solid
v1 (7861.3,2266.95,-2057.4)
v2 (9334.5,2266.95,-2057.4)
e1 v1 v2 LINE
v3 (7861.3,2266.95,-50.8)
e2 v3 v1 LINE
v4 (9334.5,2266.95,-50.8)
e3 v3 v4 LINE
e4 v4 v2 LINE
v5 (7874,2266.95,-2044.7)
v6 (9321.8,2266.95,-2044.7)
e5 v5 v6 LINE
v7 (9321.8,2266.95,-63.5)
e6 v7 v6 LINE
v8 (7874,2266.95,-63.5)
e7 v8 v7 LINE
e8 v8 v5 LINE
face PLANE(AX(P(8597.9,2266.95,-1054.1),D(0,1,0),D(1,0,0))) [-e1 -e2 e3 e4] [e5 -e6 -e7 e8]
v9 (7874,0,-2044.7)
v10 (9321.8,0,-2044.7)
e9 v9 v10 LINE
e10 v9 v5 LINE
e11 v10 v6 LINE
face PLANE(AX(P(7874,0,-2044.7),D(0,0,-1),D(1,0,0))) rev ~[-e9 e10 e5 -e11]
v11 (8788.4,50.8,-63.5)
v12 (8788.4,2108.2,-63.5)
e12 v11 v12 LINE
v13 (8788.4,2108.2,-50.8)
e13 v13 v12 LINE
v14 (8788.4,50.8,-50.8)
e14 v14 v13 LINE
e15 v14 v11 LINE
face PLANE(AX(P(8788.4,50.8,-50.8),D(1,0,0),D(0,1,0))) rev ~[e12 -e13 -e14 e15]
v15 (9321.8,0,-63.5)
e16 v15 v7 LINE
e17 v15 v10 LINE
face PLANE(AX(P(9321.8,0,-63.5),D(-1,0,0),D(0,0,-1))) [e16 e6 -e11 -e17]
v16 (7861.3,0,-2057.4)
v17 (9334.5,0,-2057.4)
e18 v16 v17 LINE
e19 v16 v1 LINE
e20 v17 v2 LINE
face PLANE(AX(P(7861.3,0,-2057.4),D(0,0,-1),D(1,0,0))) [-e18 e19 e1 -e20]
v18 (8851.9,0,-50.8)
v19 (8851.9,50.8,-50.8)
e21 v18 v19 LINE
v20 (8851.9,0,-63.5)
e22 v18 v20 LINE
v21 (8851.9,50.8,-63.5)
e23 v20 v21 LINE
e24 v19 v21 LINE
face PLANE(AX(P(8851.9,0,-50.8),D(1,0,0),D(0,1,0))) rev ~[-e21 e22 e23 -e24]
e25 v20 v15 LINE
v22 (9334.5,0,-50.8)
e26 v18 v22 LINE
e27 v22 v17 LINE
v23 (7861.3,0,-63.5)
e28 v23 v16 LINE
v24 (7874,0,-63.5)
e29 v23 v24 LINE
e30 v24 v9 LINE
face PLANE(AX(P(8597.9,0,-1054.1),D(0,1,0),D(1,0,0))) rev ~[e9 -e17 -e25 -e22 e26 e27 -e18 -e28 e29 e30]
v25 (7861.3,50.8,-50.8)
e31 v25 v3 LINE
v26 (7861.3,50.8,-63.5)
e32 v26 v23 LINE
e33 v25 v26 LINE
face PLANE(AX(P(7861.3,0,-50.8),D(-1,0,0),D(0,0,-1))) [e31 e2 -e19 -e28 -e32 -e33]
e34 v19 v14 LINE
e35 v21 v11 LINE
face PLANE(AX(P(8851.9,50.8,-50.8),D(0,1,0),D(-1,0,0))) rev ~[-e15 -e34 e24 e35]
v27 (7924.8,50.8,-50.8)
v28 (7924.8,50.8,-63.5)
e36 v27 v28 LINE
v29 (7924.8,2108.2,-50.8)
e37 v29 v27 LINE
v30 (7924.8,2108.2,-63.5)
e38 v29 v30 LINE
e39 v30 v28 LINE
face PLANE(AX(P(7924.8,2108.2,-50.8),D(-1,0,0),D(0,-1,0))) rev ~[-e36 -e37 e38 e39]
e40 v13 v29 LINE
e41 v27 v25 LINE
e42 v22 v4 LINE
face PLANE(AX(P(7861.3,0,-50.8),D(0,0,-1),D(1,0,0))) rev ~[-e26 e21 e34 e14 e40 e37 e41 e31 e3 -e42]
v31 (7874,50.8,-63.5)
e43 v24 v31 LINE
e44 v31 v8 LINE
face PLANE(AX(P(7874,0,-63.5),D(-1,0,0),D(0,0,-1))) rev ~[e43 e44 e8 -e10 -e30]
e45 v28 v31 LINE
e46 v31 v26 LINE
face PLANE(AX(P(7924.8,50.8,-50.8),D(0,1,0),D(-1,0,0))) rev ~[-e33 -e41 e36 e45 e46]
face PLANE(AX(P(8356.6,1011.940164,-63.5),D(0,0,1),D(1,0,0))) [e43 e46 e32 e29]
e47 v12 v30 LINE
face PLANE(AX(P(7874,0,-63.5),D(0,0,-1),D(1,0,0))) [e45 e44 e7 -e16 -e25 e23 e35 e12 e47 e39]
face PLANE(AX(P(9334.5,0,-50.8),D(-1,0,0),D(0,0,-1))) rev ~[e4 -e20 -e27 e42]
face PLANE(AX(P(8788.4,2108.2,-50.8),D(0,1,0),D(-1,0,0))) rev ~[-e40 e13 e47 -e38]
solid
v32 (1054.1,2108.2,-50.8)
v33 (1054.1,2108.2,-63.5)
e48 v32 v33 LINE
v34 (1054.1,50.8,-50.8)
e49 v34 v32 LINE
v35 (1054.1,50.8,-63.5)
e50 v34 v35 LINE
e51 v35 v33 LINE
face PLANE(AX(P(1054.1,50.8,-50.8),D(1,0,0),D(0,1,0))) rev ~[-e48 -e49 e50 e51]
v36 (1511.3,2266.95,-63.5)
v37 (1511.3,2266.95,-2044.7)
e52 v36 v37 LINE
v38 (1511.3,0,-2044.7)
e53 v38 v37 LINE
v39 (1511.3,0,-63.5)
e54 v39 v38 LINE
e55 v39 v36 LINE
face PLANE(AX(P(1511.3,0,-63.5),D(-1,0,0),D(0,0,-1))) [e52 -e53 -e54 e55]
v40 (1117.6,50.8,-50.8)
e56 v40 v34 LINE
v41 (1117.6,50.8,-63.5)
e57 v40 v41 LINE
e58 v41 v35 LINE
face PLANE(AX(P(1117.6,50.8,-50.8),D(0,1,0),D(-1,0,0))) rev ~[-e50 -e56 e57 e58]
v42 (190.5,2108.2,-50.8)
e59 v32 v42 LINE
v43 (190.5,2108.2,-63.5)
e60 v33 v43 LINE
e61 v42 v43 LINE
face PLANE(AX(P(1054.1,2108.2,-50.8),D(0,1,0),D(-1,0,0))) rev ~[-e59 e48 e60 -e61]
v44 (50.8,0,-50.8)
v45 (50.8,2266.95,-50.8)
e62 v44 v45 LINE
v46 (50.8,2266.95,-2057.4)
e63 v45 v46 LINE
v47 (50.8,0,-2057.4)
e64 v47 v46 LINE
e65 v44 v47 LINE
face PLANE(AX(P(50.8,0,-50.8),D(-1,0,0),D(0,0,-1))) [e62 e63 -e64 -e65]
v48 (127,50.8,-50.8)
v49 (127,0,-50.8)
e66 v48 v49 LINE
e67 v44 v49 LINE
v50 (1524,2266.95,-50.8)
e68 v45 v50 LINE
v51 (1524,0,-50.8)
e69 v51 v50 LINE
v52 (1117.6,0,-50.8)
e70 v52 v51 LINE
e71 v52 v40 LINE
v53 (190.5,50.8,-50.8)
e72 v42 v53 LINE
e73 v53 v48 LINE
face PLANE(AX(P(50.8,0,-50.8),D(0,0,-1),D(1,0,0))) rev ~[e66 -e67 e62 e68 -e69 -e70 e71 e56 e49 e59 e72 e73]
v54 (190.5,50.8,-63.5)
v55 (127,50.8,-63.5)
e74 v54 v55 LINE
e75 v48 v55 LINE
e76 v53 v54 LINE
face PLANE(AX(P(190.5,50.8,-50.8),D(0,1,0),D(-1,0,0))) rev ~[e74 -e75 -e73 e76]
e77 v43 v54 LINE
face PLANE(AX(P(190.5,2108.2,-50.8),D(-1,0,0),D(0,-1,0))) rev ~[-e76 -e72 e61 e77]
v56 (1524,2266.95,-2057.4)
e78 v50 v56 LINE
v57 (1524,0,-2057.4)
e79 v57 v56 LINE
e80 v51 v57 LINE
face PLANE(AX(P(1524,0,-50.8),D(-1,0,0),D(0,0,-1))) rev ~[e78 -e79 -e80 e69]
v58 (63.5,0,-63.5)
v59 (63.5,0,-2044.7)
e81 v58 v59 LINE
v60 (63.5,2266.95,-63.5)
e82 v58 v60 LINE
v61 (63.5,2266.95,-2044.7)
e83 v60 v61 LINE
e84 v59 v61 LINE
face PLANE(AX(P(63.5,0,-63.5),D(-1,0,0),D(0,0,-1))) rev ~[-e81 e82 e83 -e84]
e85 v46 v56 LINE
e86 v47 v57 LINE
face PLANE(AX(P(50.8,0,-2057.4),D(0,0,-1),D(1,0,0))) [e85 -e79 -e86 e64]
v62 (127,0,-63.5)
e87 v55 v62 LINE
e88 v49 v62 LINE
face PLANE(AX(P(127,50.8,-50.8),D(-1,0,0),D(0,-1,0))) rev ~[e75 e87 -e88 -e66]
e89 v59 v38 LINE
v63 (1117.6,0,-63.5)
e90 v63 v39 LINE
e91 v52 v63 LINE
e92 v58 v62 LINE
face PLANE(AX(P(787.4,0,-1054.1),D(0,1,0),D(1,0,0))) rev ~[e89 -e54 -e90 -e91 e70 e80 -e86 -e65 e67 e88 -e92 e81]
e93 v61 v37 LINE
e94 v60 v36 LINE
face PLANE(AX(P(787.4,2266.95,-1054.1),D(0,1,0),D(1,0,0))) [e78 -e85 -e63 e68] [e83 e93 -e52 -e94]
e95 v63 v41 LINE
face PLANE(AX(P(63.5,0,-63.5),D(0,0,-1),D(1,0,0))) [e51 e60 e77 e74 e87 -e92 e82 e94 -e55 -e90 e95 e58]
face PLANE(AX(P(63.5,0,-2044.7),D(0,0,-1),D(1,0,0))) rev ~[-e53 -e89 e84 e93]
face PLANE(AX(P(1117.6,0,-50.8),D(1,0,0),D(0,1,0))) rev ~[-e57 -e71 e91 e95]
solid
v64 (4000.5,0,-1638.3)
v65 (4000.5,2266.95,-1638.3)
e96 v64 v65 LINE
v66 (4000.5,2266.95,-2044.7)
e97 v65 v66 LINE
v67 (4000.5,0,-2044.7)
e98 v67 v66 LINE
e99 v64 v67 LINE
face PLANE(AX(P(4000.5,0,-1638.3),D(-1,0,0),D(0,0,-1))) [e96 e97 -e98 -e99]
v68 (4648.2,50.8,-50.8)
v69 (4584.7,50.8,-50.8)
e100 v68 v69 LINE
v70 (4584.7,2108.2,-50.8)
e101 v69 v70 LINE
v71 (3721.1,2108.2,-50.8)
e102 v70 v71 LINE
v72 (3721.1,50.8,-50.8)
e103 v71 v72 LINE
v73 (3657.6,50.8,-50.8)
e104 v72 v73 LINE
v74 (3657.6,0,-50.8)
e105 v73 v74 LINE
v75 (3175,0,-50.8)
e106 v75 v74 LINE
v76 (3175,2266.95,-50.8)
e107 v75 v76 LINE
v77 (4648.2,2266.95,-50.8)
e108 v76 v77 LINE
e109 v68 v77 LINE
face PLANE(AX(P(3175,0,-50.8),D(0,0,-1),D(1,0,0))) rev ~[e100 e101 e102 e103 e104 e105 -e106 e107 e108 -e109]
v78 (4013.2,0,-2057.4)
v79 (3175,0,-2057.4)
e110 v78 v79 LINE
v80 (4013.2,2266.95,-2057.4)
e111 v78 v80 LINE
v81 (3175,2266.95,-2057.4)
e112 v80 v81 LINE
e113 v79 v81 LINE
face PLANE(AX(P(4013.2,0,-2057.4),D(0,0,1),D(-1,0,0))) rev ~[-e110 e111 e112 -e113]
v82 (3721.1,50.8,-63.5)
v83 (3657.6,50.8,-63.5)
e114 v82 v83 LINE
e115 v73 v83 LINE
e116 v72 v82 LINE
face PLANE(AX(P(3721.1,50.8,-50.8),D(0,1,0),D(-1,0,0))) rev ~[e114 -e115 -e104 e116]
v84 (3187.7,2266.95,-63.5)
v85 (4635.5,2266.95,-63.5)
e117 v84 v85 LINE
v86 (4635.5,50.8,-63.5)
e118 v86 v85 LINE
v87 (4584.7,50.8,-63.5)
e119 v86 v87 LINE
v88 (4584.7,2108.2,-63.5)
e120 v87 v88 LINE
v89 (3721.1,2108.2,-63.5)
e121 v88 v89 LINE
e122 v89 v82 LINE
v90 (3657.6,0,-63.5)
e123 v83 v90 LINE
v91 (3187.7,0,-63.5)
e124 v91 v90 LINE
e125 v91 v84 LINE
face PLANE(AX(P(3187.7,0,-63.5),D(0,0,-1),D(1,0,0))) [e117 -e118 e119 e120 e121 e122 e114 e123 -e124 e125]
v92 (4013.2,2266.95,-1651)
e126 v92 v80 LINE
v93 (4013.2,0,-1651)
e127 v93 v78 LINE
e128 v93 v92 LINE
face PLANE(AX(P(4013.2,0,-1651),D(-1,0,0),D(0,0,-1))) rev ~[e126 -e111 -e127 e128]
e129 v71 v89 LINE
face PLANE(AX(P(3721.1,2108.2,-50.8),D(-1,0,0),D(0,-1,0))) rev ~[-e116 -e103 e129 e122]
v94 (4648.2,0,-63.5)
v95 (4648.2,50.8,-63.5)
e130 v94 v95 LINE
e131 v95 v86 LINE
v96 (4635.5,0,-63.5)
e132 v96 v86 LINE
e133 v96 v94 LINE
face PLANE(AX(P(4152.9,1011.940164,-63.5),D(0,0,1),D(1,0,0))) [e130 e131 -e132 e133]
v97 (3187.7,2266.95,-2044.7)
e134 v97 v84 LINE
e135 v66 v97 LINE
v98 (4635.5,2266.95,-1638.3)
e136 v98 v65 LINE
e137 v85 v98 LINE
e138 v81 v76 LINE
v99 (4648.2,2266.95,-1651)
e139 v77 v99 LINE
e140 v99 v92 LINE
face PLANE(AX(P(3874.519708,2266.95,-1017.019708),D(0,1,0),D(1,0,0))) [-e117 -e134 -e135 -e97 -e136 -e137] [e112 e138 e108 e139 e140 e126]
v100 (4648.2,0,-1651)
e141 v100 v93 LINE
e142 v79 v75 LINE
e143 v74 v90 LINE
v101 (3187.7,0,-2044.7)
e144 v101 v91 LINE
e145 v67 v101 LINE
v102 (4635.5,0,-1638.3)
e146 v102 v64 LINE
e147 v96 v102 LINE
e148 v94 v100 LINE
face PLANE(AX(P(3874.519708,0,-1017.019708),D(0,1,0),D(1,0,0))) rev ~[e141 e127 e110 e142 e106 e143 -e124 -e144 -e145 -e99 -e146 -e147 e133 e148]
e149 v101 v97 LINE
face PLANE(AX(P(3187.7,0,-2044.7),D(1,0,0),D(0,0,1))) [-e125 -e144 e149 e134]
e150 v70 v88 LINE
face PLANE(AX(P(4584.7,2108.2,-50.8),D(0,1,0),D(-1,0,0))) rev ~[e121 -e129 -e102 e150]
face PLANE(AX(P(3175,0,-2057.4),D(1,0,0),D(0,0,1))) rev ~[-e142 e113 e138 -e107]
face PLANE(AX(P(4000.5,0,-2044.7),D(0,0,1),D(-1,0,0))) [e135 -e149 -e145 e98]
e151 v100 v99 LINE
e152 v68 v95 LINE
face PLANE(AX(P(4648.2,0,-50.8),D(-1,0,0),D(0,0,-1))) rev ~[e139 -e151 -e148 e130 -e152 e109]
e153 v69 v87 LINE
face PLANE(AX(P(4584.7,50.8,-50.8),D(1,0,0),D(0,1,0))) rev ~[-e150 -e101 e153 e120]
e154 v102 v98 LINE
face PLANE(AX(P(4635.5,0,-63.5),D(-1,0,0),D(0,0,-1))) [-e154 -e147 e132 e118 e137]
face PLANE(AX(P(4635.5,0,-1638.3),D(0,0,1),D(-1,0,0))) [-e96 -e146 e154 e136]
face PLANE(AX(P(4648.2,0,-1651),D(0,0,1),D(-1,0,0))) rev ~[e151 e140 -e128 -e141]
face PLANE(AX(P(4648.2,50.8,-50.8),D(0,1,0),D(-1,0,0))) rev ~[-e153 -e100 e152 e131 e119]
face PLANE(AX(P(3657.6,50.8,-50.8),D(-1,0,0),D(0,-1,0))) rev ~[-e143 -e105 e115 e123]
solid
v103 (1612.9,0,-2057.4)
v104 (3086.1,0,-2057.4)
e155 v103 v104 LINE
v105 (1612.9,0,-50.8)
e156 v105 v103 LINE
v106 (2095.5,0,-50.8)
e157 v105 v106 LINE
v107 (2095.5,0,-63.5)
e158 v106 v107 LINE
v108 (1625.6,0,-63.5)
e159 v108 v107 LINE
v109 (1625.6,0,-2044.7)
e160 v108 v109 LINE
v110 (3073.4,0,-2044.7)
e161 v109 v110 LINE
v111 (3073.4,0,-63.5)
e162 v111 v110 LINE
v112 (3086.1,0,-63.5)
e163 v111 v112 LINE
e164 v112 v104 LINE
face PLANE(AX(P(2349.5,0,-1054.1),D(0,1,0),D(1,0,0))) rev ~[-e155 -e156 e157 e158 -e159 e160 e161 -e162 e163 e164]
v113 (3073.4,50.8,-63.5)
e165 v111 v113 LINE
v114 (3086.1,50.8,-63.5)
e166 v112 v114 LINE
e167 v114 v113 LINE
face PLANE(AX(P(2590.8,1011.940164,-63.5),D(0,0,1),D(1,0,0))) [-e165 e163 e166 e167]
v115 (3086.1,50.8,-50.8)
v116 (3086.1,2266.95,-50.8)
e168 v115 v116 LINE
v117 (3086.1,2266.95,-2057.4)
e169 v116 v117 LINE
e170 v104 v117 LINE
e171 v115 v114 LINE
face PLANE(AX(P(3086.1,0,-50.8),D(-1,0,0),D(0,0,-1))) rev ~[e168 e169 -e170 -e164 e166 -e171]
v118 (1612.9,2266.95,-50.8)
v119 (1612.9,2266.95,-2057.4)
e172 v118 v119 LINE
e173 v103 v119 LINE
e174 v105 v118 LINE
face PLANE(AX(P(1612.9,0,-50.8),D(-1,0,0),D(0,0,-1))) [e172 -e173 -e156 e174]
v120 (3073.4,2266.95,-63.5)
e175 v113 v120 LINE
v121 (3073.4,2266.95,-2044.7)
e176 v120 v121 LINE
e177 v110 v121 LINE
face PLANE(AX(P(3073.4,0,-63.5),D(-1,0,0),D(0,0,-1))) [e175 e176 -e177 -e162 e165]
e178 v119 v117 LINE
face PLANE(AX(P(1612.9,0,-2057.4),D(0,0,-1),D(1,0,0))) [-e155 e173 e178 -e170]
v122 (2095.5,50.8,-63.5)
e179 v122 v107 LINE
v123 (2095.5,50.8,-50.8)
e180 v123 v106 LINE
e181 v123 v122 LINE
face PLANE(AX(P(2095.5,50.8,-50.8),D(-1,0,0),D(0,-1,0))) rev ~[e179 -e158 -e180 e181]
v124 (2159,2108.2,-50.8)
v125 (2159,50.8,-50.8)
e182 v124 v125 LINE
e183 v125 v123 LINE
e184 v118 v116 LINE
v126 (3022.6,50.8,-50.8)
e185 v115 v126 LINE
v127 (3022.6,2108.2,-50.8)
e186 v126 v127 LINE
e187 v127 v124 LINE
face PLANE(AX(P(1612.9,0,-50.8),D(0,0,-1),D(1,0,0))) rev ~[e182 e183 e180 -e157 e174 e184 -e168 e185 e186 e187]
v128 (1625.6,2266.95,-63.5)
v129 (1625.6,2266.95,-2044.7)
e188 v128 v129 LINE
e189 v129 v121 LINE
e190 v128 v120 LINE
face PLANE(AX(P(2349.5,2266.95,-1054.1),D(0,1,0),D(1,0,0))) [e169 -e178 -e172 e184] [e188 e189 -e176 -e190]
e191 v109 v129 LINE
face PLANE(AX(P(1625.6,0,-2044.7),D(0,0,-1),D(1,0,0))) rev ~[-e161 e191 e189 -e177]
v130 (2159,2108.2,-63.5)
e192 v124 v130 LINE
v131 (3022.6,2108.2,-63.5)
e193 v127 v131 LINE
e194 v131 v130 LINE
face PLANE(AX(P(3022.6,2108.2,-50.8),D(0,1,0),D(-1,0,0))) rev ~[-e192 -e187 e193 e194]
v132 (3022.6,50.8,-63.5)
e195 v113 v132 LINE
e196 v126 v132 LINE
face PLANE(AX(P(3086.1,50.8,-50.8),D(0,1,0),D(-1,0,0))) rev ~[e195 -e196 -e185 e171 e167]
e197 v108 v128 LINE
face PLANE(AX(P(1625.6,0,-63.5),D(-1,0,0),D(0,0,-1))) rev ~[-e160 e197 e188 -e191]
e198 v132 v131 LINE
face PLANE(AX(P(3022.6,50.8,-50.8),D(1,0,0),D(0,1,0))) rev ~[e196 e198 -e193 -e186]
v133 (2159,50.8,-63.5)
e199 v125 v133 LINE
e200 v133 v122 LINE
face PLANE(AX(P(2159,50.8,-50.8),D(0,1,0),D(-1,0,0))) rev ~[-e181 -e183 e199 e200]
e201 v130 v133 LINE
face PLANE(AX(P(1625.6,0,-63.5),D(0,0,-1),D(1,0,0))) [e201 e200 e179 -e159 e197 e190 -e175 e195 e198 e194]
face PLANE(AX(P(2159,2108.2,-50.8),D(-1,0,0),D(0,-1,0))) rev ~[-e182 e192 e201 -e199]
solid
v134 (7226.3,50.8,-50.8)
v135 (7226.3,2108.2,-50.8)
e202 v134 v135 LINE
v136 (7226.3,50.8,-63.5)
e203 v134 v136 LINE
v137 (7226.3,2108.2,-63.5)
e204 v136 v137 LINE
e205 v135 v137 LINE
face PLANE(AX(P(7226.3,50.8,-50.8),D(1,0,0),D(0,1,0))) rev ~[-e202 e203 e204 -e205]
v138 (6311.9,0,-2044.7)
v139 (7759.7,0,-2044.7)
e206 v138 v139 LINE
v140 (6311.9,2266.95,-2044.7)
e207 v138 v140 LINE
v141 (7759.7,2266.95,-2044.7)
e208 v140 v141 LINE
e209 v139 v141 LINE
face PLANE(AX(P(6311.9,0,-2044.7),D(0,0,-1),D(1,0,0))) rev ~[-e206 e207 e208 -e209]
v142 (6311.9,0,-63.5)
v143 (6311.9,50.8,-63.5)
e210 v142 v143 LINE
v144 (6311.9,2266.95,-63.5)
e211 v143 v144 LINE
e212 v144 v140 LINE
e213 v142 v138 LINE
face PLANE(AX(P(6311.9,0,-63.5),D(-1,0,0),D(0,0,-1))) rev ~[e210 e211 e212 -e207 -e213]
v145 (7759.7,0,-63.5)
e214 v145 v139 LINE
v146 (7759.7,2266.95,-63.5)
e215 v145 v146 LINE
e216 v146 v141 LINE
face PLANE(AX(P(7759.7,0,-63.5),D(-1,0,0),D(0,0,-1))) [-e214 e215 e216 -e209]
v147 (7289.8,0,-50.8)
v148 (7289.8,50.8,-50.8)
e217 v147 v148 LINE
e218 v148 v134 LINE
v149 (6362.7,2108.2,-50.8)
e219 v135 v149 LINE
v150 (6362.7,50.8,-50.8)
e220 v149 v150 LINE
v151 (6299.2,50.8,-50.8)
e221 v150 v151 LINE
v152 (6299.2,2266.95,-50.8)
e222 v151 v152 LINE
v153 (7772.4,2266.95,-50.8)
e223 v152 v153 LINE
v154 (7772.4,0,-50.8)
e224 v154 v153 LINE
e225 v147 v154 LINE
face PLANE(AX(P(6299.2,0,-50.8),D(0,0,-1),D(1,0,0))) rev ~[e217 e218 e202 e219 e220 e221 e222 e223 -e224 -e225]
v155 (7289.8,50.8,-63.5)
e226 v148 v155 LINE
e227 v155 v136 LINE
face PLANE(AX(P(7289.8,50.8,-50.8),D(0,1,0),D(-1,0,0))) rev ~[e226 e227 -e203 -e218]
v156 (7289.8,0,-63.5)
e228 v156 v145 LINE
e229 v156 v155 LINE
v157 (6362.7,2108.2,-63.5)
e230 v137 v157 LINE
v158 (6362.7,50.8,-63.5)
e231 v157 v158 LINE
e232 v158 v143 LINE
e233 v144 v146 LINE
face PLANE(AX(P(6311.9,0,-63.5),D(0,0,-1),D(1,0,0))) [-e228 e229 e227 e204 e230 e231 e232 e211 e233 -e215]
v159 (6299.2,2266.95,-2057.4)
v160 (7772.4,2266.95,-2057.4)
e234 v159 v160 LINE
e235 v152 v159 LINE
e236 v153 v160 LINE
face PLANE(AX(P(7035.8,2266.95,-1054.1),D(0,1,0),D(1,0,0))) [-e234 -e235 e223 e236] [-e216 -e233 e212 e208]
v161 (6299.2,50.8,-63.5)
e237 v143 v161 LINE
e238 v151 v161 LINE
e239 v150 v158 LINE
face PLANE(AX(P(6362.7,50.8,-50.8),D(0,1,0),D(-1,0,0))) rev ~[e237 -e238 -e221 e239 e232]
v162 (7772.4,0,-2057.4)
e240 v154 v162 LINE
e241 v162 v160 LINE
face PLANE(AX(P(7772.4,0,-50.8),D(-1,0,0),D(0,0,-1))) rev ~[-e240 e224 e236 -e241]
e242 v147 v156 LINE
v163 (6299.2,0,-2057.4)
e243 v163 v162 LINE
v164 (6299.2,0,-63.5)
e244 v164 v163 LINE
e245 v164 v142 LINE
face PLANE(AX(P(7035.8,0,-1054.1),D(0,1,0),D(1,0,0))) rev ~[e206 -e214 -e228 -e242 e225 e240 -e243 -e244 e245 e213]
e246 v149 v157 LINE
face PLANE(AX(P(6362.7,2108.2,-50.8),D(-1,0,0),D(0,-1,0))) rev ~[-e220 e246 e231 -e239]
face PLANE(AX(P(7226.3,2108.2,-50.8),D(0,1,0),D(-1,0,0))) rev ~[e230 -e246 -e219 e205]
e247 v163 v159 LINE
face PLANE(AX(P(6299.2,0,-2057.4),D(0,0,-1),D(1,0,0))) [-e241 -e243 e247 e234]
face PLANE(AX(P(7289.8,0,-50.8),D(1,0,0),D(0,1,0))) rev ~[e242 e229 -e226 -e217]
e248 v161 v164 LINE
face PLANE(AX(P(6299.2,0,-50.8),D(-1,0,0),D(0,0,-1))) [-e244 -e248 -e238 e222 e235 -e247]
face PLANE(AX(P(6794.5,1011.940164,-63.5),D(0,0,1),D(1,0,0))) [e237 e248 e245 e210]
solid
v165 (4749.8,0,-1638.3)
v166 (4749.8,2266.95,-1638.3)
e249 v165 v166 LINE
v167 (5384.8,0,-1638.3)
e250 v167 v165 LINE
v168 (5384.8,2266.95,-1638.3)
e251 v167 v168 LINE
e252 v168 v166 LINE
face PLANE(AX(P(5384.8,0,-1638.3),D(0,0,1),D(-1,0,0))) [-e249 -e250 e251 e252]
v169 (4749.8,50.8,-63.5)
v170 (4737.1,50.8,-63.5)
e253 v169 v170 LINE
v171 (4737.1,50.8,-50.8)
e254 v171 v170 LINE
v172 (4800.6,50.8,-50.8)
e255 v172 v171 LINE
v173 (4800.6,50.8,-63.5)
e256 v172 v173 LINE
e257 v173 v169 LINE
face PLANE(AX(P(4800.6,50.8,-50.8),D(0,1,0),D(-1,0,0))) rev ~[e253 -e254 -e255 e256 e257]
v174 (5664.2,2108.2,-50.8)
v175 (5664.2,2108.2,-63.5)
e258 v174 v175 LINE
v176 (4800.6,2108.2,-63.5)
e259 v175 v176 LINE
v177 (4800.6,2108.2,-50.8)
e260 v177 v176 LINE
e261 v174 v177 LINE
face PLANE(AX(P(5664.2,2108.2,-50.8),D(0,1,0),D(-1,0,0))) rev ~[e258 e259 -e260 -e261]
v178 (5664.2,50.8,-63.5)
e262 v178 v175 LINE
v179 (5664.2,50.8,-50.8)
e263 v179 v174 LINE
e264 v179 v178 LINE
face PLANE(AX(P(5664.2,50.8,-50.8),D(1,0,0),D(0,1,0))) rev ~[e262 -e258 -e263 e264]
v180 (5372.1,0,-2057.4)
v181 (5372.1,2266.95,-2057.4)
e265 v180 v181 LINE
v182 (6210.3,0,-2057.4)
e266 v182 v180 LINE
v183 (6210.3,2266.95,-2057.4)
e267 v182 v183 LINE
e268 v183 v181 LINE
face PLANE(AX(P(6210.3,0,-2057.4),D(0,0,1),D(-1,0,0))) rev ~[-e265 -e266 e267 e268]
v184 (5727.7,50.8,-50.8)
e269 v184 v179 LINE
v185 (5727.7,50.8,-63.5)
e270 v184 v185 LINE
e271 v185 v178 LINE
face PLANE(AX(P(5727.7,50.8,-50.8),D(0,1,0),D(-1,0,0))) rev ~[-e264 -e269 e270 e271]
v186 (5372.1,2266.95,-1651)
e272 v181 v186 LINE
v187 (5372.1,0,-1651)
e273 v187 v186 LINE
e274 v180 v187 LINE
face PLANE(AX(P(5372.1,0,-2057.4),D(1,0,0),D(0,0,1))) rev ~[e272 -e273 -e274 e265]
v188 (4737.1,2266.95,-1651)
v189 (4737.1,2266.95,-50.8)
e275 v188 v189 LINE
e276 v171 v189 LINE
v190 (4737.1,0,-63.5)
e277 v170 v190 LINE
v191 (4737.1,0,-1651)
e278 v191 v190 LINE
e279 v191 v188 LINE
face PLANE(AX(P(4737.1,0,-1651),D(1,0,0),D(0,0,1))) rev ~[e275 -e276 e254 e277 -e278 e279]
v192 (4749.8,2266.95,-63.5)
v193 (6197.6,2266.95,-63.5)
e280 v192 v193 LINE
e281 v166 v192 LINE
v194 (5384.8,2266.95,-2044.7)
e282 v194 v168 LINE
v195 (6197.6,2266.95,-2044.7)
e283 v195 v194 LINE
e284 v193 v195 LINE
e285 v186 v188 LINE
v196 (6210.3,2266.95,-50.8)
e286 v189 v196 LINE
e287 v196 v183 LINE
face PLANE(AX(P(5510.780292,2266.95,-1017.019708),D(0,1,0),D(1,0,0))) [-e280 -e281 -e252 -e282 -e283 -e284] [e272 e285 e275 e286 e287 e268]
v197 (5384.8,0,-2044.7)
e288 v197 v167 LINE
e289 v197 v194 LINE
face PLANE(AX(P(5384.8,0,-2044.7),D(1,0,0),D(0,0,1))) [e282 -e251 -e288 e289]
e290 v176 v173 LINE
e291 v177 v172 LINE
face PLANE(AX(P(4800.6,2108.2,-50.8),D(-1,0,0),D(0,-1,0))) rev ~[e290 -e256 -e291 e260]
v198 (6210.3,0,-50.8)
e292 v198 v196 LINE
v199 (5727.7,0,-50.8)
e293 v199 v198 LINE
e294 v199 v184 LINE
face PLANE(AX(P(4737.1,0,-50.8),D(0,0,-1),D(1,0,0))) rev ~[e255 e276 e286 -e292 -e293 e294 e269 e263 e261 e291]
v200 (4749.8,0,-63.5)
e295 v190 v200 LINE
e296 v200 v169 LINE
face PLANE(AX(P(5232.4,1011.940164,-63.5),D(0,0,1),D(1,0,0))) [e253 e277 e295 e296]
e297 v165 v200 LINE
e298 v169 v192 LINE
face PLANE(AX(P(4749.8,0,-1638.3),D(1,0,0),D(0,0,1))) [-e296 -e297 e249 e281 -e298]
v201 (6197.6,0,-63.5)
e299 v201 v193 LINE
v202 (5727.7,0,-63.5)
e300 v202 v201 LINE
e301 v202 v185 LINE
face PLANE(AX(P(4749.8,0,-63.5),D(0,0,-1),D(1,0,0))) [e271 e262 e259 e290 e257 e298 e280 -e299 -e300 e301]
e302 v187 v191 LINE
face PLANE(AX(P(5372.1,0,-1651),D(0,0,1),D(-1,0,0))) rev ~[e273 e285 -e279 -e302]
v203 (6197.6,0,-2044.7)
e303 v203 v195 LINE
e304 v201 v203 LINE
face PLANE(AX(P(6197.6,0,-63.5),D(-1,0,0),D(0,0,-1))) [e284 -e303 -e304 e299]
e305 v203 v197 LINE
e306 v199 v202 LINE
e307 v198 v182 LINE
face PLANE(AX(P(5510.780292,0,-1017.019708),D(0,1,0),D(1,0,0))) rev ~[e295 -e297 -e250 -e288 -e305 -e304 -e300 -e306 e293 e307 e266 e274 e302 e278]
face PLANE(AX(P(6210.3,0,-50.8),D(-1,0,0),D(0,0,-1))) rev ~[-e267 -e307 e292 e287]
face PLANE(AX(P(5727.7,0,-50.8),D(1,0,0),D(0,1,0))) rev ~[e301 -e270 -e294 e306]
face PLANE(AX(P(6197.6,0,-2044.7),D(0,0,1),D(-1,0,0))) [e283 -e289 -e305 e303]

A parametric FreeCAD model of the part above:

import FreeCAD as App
import Part
import Sketcher
Q = App.Units.Quantity

doc = App.newDocument("Part")
body = doc.addObject("PartDesign::Body", "Body")

# Sketch on XZ plane
sketch1 = body.newObject("Sketcher::SketchObject", "Sketch")
sketch1.AttachmentSupport = (doc.getObject("XZ_Plane"), [""])
sketch1.MapMode = "FlatFace"
sketch1.addGeometry([
    Part.LineSegment(App.Vector(1613, -2057, 0), App.Vector(1613, -51, 0)),  # 0
    Part.LineSegment(App.Vector(1613, -51, 0), App.Vector(3086, -51, 0)),  # 1
    Part.LineSegment(App.Vector(3086, -51, 0), App.Vector(3086, -2057, 0)),  # 2
    Part.LineSegment(App.Vector(3086, -2057, 0), App.Vector(1613, -2057, 0)),  # 3
    Part.LineSegment(App.Vector(3073, -64, 0), App.Vector(1626, -64, 0)),  # 4
    Part.LineSegment(App.Vector(1626, -64, 0), App.Vector(1626, -2045, 0)),  # 5
    Part.LineSegment(App.Vector(1626, -2045, 0), App.Vector(3073, -2045, 0)),  # 6
    Part.LineSegment(App.Vector(3073, -2045, 0), App.Vector(3073, -64, 0)),  # 7
], False)
sketch1.addConstraint([
    Sketcher.Constraint("Coincident", 0, 2, 1, 1),
    Sketcher.Constraint("Coincident", 1, 2, 2, 1),
    Sketcher.Constraint("Coincident", 2, 2, 3, 1),
    Sketcher.Constraint("Coincident", 3, 2, 0, 1),
    Sketcher.Constraint("Coincident", 4, 2, 5, 1),
    Sketcher.Constraint("Coincident", 5, 2, 6, 1),
    Sketcher.Constraint("Coincident", 6, 2, 7, 1),
    Sketcher.Constraint("Coincident", 7, 2, 4, 1),
    Sketcher.Constraint("Vertical", 0),
    Sketcher.Constraint("Horizontal", 1),
    Sketcher.Constraint("Vertical", 2),
    Sketcher.Constraint("Horizontal", 3),
    Sketcher.Constraint("Horizontal", 4),
    Sketcher.Constraint("Vertical", 5),
    Sketcher.Constraint("Horizontal", 6),
    Sketcher.Constraint("Vertical", 7),
    Sketcher.Constraint("DistanceX", 1, 1, 1, 2, Q("58 in")),
    Sketcher.Constraint("DistanceX", 4, 2, 4, 1, Q("57 in")),
    Sketcher.Constraint("DistanceY", 0, 1, 0, 2, Q("79 in")),
    Sketcher.Constraint("DistanceY", 5, 2, 5, 1, Q("78 in")),
    Sketcher.Constraint("DistanceY", 0, 2, -1, 1, Q("2 in")),
    Sketcher.Constraint("DistanceX", -1, 1, 4, 2, Q("64 in")),
    Sketcher.Constraint("DistanceX", -1, 1, 0, 2, Q("63.5 in")),
    Sketcher.Constraint("DistanceY", 4, 2, -1, 1, Q("2.5 in")),
])
pad1 = body.newObject("PartDesign::Pad", "Pad")
pad1.Profile = sketch1
pad1.Length = Q("89.25 in")
pad1.Reversed = True
body2 = doc.addObject("PartDesign::Body", "Body001")

# Sketch on XZ plane
sketch2 = body2.newObject("Sketcher::SketchObject", "Sketch001")
sketch2.AttachmentSupport = (doc.getObject("XZ_Plane001"), [""])
sketch2.MapMode = "FlatFace"
sketch2.addGeometry([
    Part.LineSegment(App.Vector(4013, -1651, 0), App.Vector(4013, -2057, 0)),  # 0
    Part.LineSegment(App.Vector(4013, -2057, 0), App.Vector(3175, -2057, 0)),  # 1
    Part.LineSegment(App.Vector(3175, -2057, 0), App.Vector(3175, -51, 0)),  # 2
    Part.LineSegment(App.Vector(3175, -51, 0), App.Vector(4648, -51, 0)),  # 3
    Part.LineSegment(App.Vector(4648, -51, 0), App.Vector(4648, -1651, 0)),  # 4
    Part.LineSegment(App.Vector(4648, -1651, 0), App.Vector(4013, -1651, 0)),  # 5
    Part.LineSegment(App.Vector(4636, -64, 0), App.Vector(3188, -64, 0)),  # 6
    Part.LineSegment(App.Vector(3188, -64, 0), App.Vector(3188, -2045, 0)),  # 7
    Part.LineSegment(App.Vector(3188, -2045, 0), App.Vector(4000, -2045, 0)),  # 8
    Part.LineSegment(App.Vector(4000, -2045, 0), App.Vector(4000, -1638, 0)),  # 9
    Part.LineSegment(App.Vector(4000, -1638, 0), App.Vector(4636, -1638, 0)),  # 10
    Part.LineSegment(App.Vector(4636, -1638, 0), App.Vector(4636, -64, 0)),  # 11
], False)
sketch2.addConstraint([
    Sketcher.Constraint("Coincident", 0, 2, 1, 1),
    Sketcher.Constraint("Coincident", 1, 2, 2, 1),
    Sketcher.Constraint("Coincident", 2, 2, 3, 1),
    Sketcher.Constraint("Coincident", 3, 2, 4, 1),
    Sketcher.Constraint("Coincident", 4, 2, 5, 1),
    Sketcher.Constraint("Coincident", 5, 2, 0, 1),
    Sketcher.Constraint("Coincident", 6, 2, 7, 1),
    Sketcher.Constraint("Coincident", 7, 2, 8, 1),
    Sketcher.Constraint("Coincident", 8, 2, 9, 1),
    Sketcher.Constraint("Coincident", 9, 2, 10, 1),
    Sketcher.Constraint("Coincident", 10, 2, 11, 1),
    Sketcher.Constraint("Coincident", 11, 2, 6, 1),
    Sketcher.Constraint("Vertical", 0),
    Sketcher.Constraint("Horizontal", 1),
    Sketcher.Constraint("Vertical", 2),
    Sketcher.Constraint("Horizontal", 3),
    Sketcher.Constraint("Vertical", 4),
    Sketcher.Constraint("Horizontal", 5),
    Sketcher.Constraint("Horizontal", 6),
    Sketcher.Constraint("Vertical", 7),
    Sketcher.Constraint("Horizontal", 8),
    Sketcher.Constraint("Vertical", 9),
    Sketcher.Constraint("Horizontal", 10),
    Sketcher.Constraint("Vertical", 11),
    Sketcher.Constraint("Equal", 5, 10),
    Sketcher.Constraint("Equal", 0, 9),
    Sketcher.Constraint("DistanceX", 1, 2, 1, 1, Q("33 in")),
    Sketcher.Constraint("DistanceX", 3, 1, 3, 2, Q("58 in")),
    Sketcher.Constraint("DistanceX", 6, 2, 6, 1, Q("57 in")),
    Sketcher.Constraint("DistanceY", 0, 2, 0, 1, Q("16 in")),
    Sketcher.Constraint("DistanceY", 2, 1, 2, 2, Q("79 in")),
    Sketcher.Constraint("DistanceY", 7, 2, 7, 1, Q("78 in")),
    Sketcher.Constraint("DistanceX", -1, 1, 0, 2, Q("158 in")),
    Sketcher.Constraint("DistanceY", 0, 2, -1, 1, Q("81 in")),
    Sketcher.Constraint("DistanceX", -1, 1, 6, 2, Q("125.5 in")),
    Sketcher.Constraint("DistanceY", 6, 2, -1, 1, Q("2.5 in")),
])
pad2 = body2.newObject("PartDesign::Pad", "Pad001")
pad2.Profile = sketch2
pad2.Length = Q("89.25 in")
pad2.Reversed = True
body3 = doc.addObject("PartDesign::Body", "Body002")

# Sketch on XZ plane
sketch3 = body3.newObject("Sketcher::SketchObject", "Sketch002")
sketch3.AttachmentSupport = (doc.getObject("XZ_Plane002"), [""])
sketch3.MapMode = "FlatFace"
sketch3.addGeometry([
    Part.LineSegment(App.Vector(51, -2057, 0), App.Vector(51, -51, 0)),  # 0
    Part.LineSegment(App.Vector(51, -51, 0), App.Vector(1524, -51, 0)),  # 1
    Part.LineSegment(App.Vector(1524, -51, 0), App.Vector(1524, -2057, 0)),  # 2
    Part.LineSegment(App.Vector(1524, -2057, 0), App.Vector(51, -2057, 0)),  # 3
    Part.LineSegment(App.Vector(1511, -64, 0), App.Vector(64, -64, 0)),  # 4
    Part.LineSegment(App.Vector(64, -64, 0), App.Vector(64, -2045, 0)),  # 5
    Part.LineSegment(App.Vector(64, -2045, 0), App.Vector(1511, -2045, 0)),  # 6
    Part.LineSegment(App.Vector(1511, -2045, 0), App.Vector(1511, -64, 0)),  # 7
], False)
sketch3.addConstraint([
    Sketcher.Constraint("Coincident", 0, 2, 1, 1),
    Sketcher.Constraint("Coincident", 1, 2, 2, 1),
    Sketcher.Constraint("Coincident", 2, 2, 3, 1),
    Sketcher.Constraint("Coincident", 3, 2, 0, 1),
    Sketcher.Constraint("Coincident", 4, 2, 5, 1),
    Sketcher.Constraint("Coincident", 5, 2, 6, 1),
    Sketcher.Constraint("Coincident", 6, 2, 7, 1),
    Sketcher.Constraint("Coincident", 7, 2, 4, 1),
    Sketcher.Constraint("Vertical", 0),
    Sketcher.Constraint("Horizontal", 1),
    Sketcher.Constraint("Vertical", 2),
    Sketcher.Constraint("Horizontal", 3),
    Sketcher.Constraint("Horizontal", 4),
    Sketcher.Constraint("Vertical", 5),
    Sketcher.Constraint("Horizontal", 6),
    Sketcher.Constraint("Vertical", 7),
    Sketcher.Constraint("DistanceX", 1, 1, 1, 2, Q("58 in")),
    Sketcher.Constraint("DistanceX", 4, 2, 4, 1, Q("57 in")),
    Sketcher.Constraint("DistanceY", 0, 1, 0, 2, Q("79 in")),
    Sketcher.Constraint("DistanceY", 5, 2, 5, 1, Q("78 in")),
    Sketcher.Constraint("DistanceX", -1, 1, 0, 2, Q("2 in")),
    Sketcher.Constraint("DistanceY", 0, 2, -1, 1, Q("2 in")),
    Sketcher.Constraint("DistanceX", -1, 1, 4, 2, Q("2.5 in")),
    Sketcher.Constraint("DistanceY", 4, 2, -1, 1, Q("2.5 in")),
])
pad3 = body3.newObject("PartDesign::Pad", "Pad002")
pad3.Profile = sketch3
pad3.Length = Q("89.25 in")
pad3.Reversed = True
body4 = doc.addObject("PartDesign::Body", "Body003")

# Sketch on XZ plane
sketch4 = body4.newObject("Sketcher::SketchObject", "Sketch003")
sketch4.AttachmentSupport = (doc.getObject("XZ_Plane003"), [""])
sketch4.MapMode = "FlatFace"
sketch4.addGeometry([
    Part.LineSegment(App.Vector(6299, -2057, 0), App.Vector(6299, -51, 0)),  # 0
    Part.LineSegment(App.Vector(6299, -51, 0), App.Vector(7772, -51, 0)),  # 1
    Part.LineSegment(App.Vector(7772, -51, 0), App.Vector(7772, -2057, 0)),  # 2
    Part.LineSegment(App.Vector(7772, -2057, 0), App.Vector(6299, -2057, 0)),  # 3
    Part.LineSegment(App.Vector(7760, -64, 0), App.Vector(6312, -64, 0)),  # 4
    Part.LineSegment(App.Vector(6312, -64, 0), App.Vector(6312, -2045, 0)),  # 5
    Part.LineSegment(App.Vector(6312, -2045, 0), App.Vector(7760, -2045, 0)),  # 6
    Part.LineSegment(App.Vector(7760, -2045, 0), App.Vector(7760, -64, 0)),  # 7
], False)
sketch4.addConstraint([
    Sketcher.Constraint("Coincident", 0, 2, 1, 1),
    Sketcher.Constraint("Coincident", 1, 2, 2, 1),
    Sketcher.Constraint("Coincident", 2, 2, 3, 1),
    Sketcher.Constraint("Coincident", 3, 2, 0, 1),
    Sketcher.Constraint("Coincident", 4, 2, 5, 1),
    Sketcher.Constraint("Coincident", 5, 2, 6, 1),
    Sketcher.Constraint("Coincident", 6, 2, 7, 1),
    Sketcher.Constraint("Coincident", 7, 2, 4, 1),
    Sketcher.Constraint("Vertical", 0),
    Sketcher.Constraint("Horizontal", 1),
    Sketcher.Constraint("Vertical", 2),
    Sketcher.Constraint("Horizontal", 3),
    Sketcher.Constraint("Horizontal", 4),
    Sketcher.Constraint("Vertical", 5),
    Sketcher.Constraint("Horizontal", 6),
    Sketcher.Constraint("Vertical", 7),
    Sketcher.Constraint("DistanceX", 1, 1, 1, 2, Q("58 in")),
    Sketcher.Constraint("DistanceX", 4, 2, 4, 1, Q("57 in")),
    Sketcher.Constraint("DistanceY", 0, 1, 0, 2, Q("79 in")),
    Sketcher.Constraint("DistanceY", 5, 2, 5, 1, Q("78 in")),
    Sketcher.Constraint("DistanceX", -1, 1, 0, 2, Q("248 in")),
    Sketcher.Constraint("DistanceY", 0, 2, -1, 1, Q("2 in")),
    Sketcher.Constraint("DistanceX", -1, 1, 4, 2, Q("248.5 in")),
    Sketcher.Constraint("DistanceY", 4, 2, -1, 1, Q("2.5 in")),
])
pad4 = body4.newObject("PartDesign::Pad", "Pad003")
pad4.Profile = sketch4
pad4.Length = Q("89.25 in")
pad4.Reversed = True
body5 = doc.addObject("PartDesign::Body", "Body004")

# Sketch on XZ plane
sketch5 = body5.newObject("Sketcher::SketchObject", "Sketch004")
sketch5.AttachmentSupport = (doc.getObject("XZ_Plane004"), [""])
sketch5.MapMode = "FlatFace"
sketch5.addGeometry([
    Part.LineSegment(App.Vector(5372, -2057, 0), App.Vector(5372, -1651, 0)),  # 0
    Part.LineSegment(App.Vector(5372, -1651, 0), App.Vector(4737, -1651, 0)),  # 1
    Part.LineSegment(App.Vector(4737, -1651, 0), App.Vector(4737, -51, 0)),  # 2
    Part.LineSegment(App.Vector(4737, -51, 0), App.Vector(6210, -51, 0)),  # 3
    Part.LineSegment(App.Vector(6210, -51, 0), App.Vector(6210, -2057, 0)),  # 4
    Part.LineSegment(App.Vector(6210, -2057, 0), App.Vector(5372, -2057, 0)),  # 5
    Part.LineSegment(App.Vector(4750, -1638, 0), App.Vector(5385, -1638, 0)),  # 6
    Part.LineSegment(App.Vector(5385, -1638, 0), App.Vector(5385, -2045, 0)),  # 7
    Part.LineSegment(App.Vector(5385, -2045, 0), App.Vector(6198, -2045, 0)),  # 8
    Part.LineSegment(App.Vector(6198, -2045, 0), App.Vector(6198, -64, 0)),  # 9
    Part.LineSegment(App.Vector(6198, -64, 0), App.Vector(4750, -64, 0)),  # 10
    Part.LineSegment(App.Vector(4750, -64, 0), App.Vector(4750, -1638, 0)),  # 11
], False)
sketch5.addConstraint([
    Sketcher.Constraint("Coincident", 0, 2, 1, 1),
    Sketcher.Constraint("Coincident", 1, 2, 2, 1),
    Sketcher.Constraint("Coincident", 2, 2, 3, 1),
    Sketcher.Constraint("Coincident", 3, 2, 4, 1),
    Sketcher.Constraint("Coincident", 4, 2, 5, 1),
    Sketcher.Constraint("Coincident", 5, 2, 0, 1),
    Sketcher.Constraint("Coincident", 6, 2, 7, 1),
    Sketcher.Constraint("Coincident", 7, 2, 8, 1),
    Sketcher.Constraint("Coincident", 8, 2, 9, 1),
    Sketcher.Constraint("Coincident", 9, 2, 10, 1),
    Sketcher.Constraint("Coincident", 10, 2, 11, 1),
    Sketcher.Constraint("Coincident", 11, 2, 6, 1),
    Sketcher.Constraint("Vertical", 0),
    Sketcher.Constraint("Horizontal", 1),
    Sketcher.Constraint("Vertical", 2),
    Sketcher.Constraint("Horizontal", 3),
    Sketcher.Constraint("Vertical", 4),
    Sketcher.Constraint("Horizontal", 5),
    Sketcher.Constraint("Horizontal", 6),
    Sketcher.Constraint("Vertical", 7),
    Sketcher.Constraint("Horizontal", 8),
    Sketcher.Constraint("Vertical", 9),
    Sketcher.Constraint("Horizontal", 10),
    Sketcher.Constraint("Vertical", 11),
    Sketcher.Constraint("Equal", 1, 6),
    Sketcher.Constraint("Equal", 0, 7),
    Sketcher.Constraint("DistanceX", 1, 2, 1, 1, Q("25 in")),
    Sketcher.Constraint("DistanceX", 3, 1, 3, 2, Q("58 in")),
    Sketcher.Constraint("DistanceX", 8, 1, 8, 2, Q("32 in")),
    Sketcher.Constraint("DistanceY", 0, 1, 0, 2, Q("16 in")),
    Sketcher.Constraint("DistanceY", 2, 1, 2, 2, Q("63 in")),
    Sketcher.Constraint("DistanceY", 9, 1, 9, 2, Q("78 in")),
    Sketcher.Constraint("DistanceY", 0, 2, -1, 1, Q("65 in")),
    Sketcher.Constraint("DistanceX", -1, 1, 6, 2, Q("212 in")),
    Sketcher.Constraint("DistanceX", -1, 1, 0, 2, Q("211.5 in")),
    Sketcher.Constraint("DistanceY", 6, 2, -1, 1, Q("64.5 in")),
])
pad5 = body5.newObject("PartDesign::Pad", "Pad004")
pad5.Profile = sketch5
pad5.Length = Q("89.25 in")
pad5.Reversed = True
body6 = doc.addObject("PartDesign::Body", "Body005")

# Sketch on XZ plane
sketch6 = body6.newObject("Sketcher::SketchObject", "Sketch005")
sketch6.AttachmentSupport = (doc.getObject("XZ_Plane005"), [""])
sketch6.MapMode = "FlatFace"
sketch6.addGeometry([
    Part.LineSegment(App.Vector(7861, -2057, 0), App.Vector(7861, -51, 0)),  # 0
    Part.LineSegment(App.Vector(7861, -51, 0), App.Vector(9334, -51, 0)),  # 1
    Part.LineSegment(App.Vector(9334, -51, 0), App.Vector(9334, -2057, 0)),  # 2
    Part.LineSegment(App.Vector(9334, -2057, 0), App.Vector(7861, -2057, 0)),  # 3
    Part.LineSegment(App.Vector(9322, -64, 0), App.Vector(7874, -64, 0)),  # 4
    Part.LineSegment(App.Vector(7874, -64, 0), App.Vector(7874, -2045, 0)),  # 5
    Part.LineSegment(App.Vector(7874, -2045, 0), App.Vector(9322, -2045, 0)),  # 6
    Part.LineSegment(App.Vector(9322, -2045, 0), App.Vector(9322, -64, 0)),  # 7
], False)
sketch6.addConstraint([
    Sketcher.Constraint("Coincident", 0, 2, 1, 1),
    Sketcher.Constraint("Coincident", 1, 2, 2, 1),
    Sketcher.Constraint("Coincident", 2, 2, 3, 1),
    Sketcher.Constraint("Coincident", 3, 2, 0, 1),
    Sketcher.Constraint("Coincident", 4, 2, 5, 1),
    Sketcher.Constraint("Coincident", 5, 2, 6, 1),
    Sketcher.Constraint("Coincident", 6, 2, 7, 1),
    Sketcher.Constraint("Coincident", 7, 2, 4, 1),
    Sketcher.Constraint("Vertical", 0),
    Sketcher.Constraint("Horizontal", 1),
    Sketcher.Constraint("Vertical", 2),
    Sketcher.Constraint("Horizontal", 3),
    Sketcher.Constraint("Horizontal", 4),
    Sketcher.Constraint("Vertical", 5),
    Sketcher.Constraint("Horizontal", 6),
    Sketcher.Constraint("Vertical", 7),
    Sketcher.Constraint("DistanceX", 1, 1, 1, 2, Q("58 in")),
    Sketcher.Constraint("DistanceX", 4, 2, 4, 1, Q("57 in")),
    Sketcher.Constraint("DistanceY", 0, 1, 0, 2, Q("79 in")),
    Sketcher.Constraint("DistanceY", 5, 2, 5, 1, Q("78 in")),
    Sketcher.Constraint("DistanceY", 0, 2, -1, 1, Q("2 in")),
    Sketcher.Constraint("DistanceX", -1, 1, 4, 2, Q("310 in")),
    Sketcher.Constraint("DistanceX", -1, 1, 0, 2, Q("309.5 in")),
    Sketcher.Constraint("DistanceY", 4, 2, -1, 1, Q("2.5 in")),
])
pad6 = body6.newObject("PartDesign::Pad", "Pad005")
pad6.Profile = sketch6
pad6.Length = Q("89.25 in")
pad6.Reversed = True
body7 = doc.addObject("PartDesign::Body", "Body006")
body7.AllowCompound = True

# Sketch on XY plane
sketch7 = body7.newObject("Sketcher::SketchObject", "Sketch006")
sketch7.AttachmentSupport = (doc.getObject("XY_Plane006"), [""])
sketch7.MapMode = "FlatFace"
sketch7.AttachmentOffset = App.Placement(App.Vector(0, 0, -2 * 25.4), App.Rotation())
sketch7.addGeometry([
    Part.LineSegment(App.Vector(127, 0, 0), App.Vector(1118, 0, 0)),  # 0
    Part.LineSegment(App.Vector(1118, 0, 0), App.Vector(1118, 51, 0)),  # 1
    Part.LineSegment(App.Vector(1118, 51, 0), App.Vector(1054, 51, 0)),  # 2
    Part.LineSegment(App.Vector(1054, 51, 0), App.Vector(1054, 2108, 0)),  # 3
    Part.LineSegment(App.Vector(1054, 2108, 0), App.Vector(190, 2108, 0)),  # 4
    Part.LineSegment(App.Vector(190, 2108, 0), App.Vector(190, 51, 0)),  # 5
    Part.LineSegment(App.Vector(190, 51, 0), App.Vector(127, 51, 0)),  # 6
    Part.LineSegment(App.Vector(127, 51, 0), App.Vector(127, 0, 0)),  # 7
    Part.LineSegment(App.Vector(2096, 0, 0), App.Vector(3086, 0, 0)),  # 8
    Part.LineSegment(App.Vector(3086, 0, 0), App.Vector(3086, 51, 0)),  # 9
    Part.LineSegment(App.Vector(3086, 51, 0), App.Vector(3023, 51, 0)),  # 10
    Part.LineSegment(App.Vector(3023, 51, 0), App.Vector(3023, 2108, 0)),  # 11
    Part.LineSegment(App.Vector(3023, 2108, 0), App.Vector(2159, 2108, 0)),  # 12
    Part.LineSegment(App.Vector(2159, 2108, 0), App.Vector(2159, 51, 0)),  # 13
    Part.LineSegment(App.Vector(2159, 51, 0), App.Vector(2096, 51, 0)),  # 14
    Part.LineSegment(App.Vector(2096, 51, 0), App.Vector(2096, 0, 0)),  # 15
    Part.LineSegment(App.Vector(3658, 51, 0), App.Vector(3658, 0, 0)),  # 16
    Part.LineSegment(App.Vector(3658, 0, 0), App.Vector(4648, 0, 0)),  # 17
    Part.LineSegment(App.Vector(4648, 0, 0), App.Vector(4648, 51, 0)),  # 18
    Part.LineSegment(App.Vector(4648, 51, 0), App.Vector(4585, 51, 0)),  # 19
    Part.LineSegment(App.Vector(4585, 51, 0), App.Vector(4585, 2108, 0)),  # 20
    Part.LineSegment(App.Vector(4585, 2108, 0), App.Vector(3721, 2108, 0)),  # 21
    Part.LineSegment(App.Vector(3721, 2108, 0), App.Vector(3721, 51, 0)),  # 22
    Part.LineSegment(App.Vector(3721, 51, 0), App.Vector(3658, 51, 0)),  # 23
    Part.LineSegment(App.Vector(4801, 51, 0), App.Vector(4737, 51, 0)),  # 24
    Part.LineSegment(App.Vector(4737, 51, 0), App.Vector(4737, 0, 0)),  # 25
    Part.LineSegment(App.Vector(4737, 0, 0), App.Vector(5728, 0, 0)),  # 26
    Part.LineSegment(App.Vector(5728, 0, 0), App.Vector(5728, 51, 0)),  # 27
    Part.LineSegment(App.Vector(5728, 51, 0), App.Vector(5664, 51, 0)),  # 28
    Part.LineSegment(App.Vector(5664, 51, 0), App.Vector(5664, 2108, 0)),  # 29
    Part.LineSegment(App.Vector(5664, 2108, 0), App.Vector(4801, 2108, 0)),  # 30
    Part.LineSegment(App.Vector(4801, 2108, 0), App.Vector(4801, 51, 0)),  # 31
    Part.LineSegment(App.Vector(6299, 51, 0), App.Vector(6299, 0, 0)),  # 32
    Part.LineSegment(App.Vector(6299, 0, 0), App.Vector(7290, 0, 0)),  # 33
    Part.LineSegment(App.Vector(7290, 0, 0), App.Vector(7290, 51, 0)),  # 34
    Part.LineSegment(App.Vector(7290, 51, 0), App.Vector(7226, 51, 0)),  # 35
    Part.LineSegment(App.Vector(7226, 51, 0), App.Vector(7226, 2108, 0)),  # 36
    Part.LineSegment(App.Vector(7226, 2108, 0), App.Vector(6363, 2108, 0)),  # 37
    Part.LineSegment(App.Vector(6363, 2108, 0), App.Vector(6363, 51, 0)),  # 38
    Part.LineSegment(App.Vector(6363, 51, 0), App.Vector(6299, 51, 0)),  # 39
    Part.LineSegment(App.Vector(7861, 51, 0), App.Vector(7861, 0, 0)),  # 40
    Part.LineSegment(App.Vector(7861, 0, 0), App.Vector(8852, 0, 0)),  # 41
    Part.LineSegment(App.Vector(8852, 0, 0), App.Vector(8852, 51, 0)),  # 42
    Part.LineSegment(App.Vector(8852, 51, 0), App.Vector(8788, 51, 0)),  # 43
    Part.LineSegment(App.Vector(8788, 51, 0), App.Vector(8788, 2108, 0)),  # 44
    Part.LineSegment(App.Vector(8788, 2108, 0), App.Vector(7925, 2108, 0)),  # 45
    Part.LineSegment(App.Vector(7925, 2108, 0), App.Vector(7925, 51, 0)),  # 46
    Part.LineSegment(App.Vector(7925, 51, 0), App.Vector(7861, 51, 0)),  # 47
], False)
sketch7.addConstraint([
    Sketcher.Constraint("Coincident", 0, 2, 1, 1),
    Sketcher.Constraint("Coincident", 1, 2, 2, 1),
    Sketcher.Constraint("Coincident", 2, 2, 3, 1),
    Sketcher.Constraint("Coincident", 3, 2, 4, 1),
    Sketcher.Constraint("Coincident", 4, 2, 5, 1),
    Sketcher.Constraint("Coincident", 5, 2, 6, 1),
    Sketcher.Constraint("Coincident", 6, 2, 7, 1),
    Sketcher.Constraint("Coincident", 7, 2, 0, 1),
    Sketcher.Constraint("Coincident", 8, 2, 9, 1),
    Sketcher.Constraint("Coincident", 9, 2, 10, 1),
    Sketcher.Constraint("Coincident", 10, 2, 11, 1),
    Sketcher.Constraint("Coincident", 11, 2, 12, 1),
    Sketcher.Constraint("Coincident", 12, 2, 13, 1),
    Sketcher.Constraint("Coincident", 13, 2, 14, 1),
    Sketcher.Constraint("Coincident", 14, 2, 15, 1),
    Sketcher.Constraint("Coincident", 15, 2, 8, 1),
    Sketcher.Constraint("Coincident", 16, 2, 17, 1),
    Sketcher.Constraint("Coincident", 17, 2, 18, 1),
    Sketcher.Constraint("Coincident", 18, 2, 19, 1),
    Sketcher.Constraint("Coincident", 19, 2, 20, 1),
    Sketcher.Constraint("Coincident", 20, 2, 21, 1),
    Sketcher.Constraint("Coincident", 21, 2, 22, 1),
    Sketcher.Constraint("Coincident", 22, 2, 23, 1),
    Sketcher.Constraint("Coincident", 23, 2, 16, 1),
    Sketcher.Constraint("Coincident", 24, 2, 25, 1),
    Sketcher.Constraint("Coincident", 25, 2, 26, 1),
    Sketcher.Constraint("Coincident", 26, 2, 27, 1),
    Sketcher.Constraint("Coincident", 27, 2, 28, 1),
    Sketcher.Constraint("Coincident", 28, 2, 29, 1),
    Sketcher.Constraint("Coincident", 29, 2, 30, 1),
    Sketcher.Constraint("Coincident", 30, 2, 31, 1),
    Sketcher.Constraint("Coincident", 31, 2, 24, 1),
    Sketcher.Constraint("Coincident", 32, 2, 33, 1),
    Sketcher.Constraint("Coincident", 33, 2, 34, 1),
    Sketcher.Constraint("Coincident", 34, 2, 35, 1),
    Sketcher.Constraint("Coincident", 35, 2, 36, 1),
    Sketcher.Constraint("Coincident", 36, 2, 37, 1),
    Sketcher.Constraint("Coincident", 37, 2, 38, 1),
    Sketcher.Constraint("Coincident", 38, 2, 39, 1),
    Sketcher.Constraint("Coincident", 39, 2, 32, 1),
    Sketcher.Constraint("Coincident", 40, 2, 41, 1),
    Sketcher.Constraint("Coincident", 41, 2, 42, 1),
    Sketcher.Constraint("Coincident", 42, 2, 43, 1),
    Sketcher.Constraint("Coincident", 43, 2, 44, 1),
    Sketcher.Constraint("Coincident", 44, 2, 45, 1),
    Sketcher.Constraint("Coincident", 45, 2, 46, 1),
    Sketcher.Constraint("Coincident", 46, 2, 47, 1),
    Sketcher.Constraint("Coincident", 47, 2, 40, 1),
    Sketcher.Constraint("Horizontal", 0),
    Sketcher.Constraint("Vertical", 1),
    Sketcher.Constraint("Horizontal", 2),
    Sketcher.Constraint("Vertical", 3),
    Sketcher.Constraint("Horizontal", 4),
    Sketcher.Constraint("Vertical", 5),
    Sketcher.Constraint("Horizontal", 6),
    Sketcher.Constraint("Vertical", 7),
    Sketcher.Constraint("Horizontal", 8),
    Sketcher.Constraint("Vertical", 9),
    Sketcher.Constraint("Horizontal", 10),
    Sketcher.Constraint("Vertical", 11),
    Sketcher.Constraint("Horizontal", 12),
    Sketcher.Constraint("Vertical", 13),
    Sketcher.Constraint("Horizontal", 14),
    Sketcher.Constraint("Vertical", 15),
    Sketcher.Constraint("Vertical", 16),
    Sketcher.Constraint("Horizontal", 17),
    Sketcher.Constraint("Vertical", 18),
    Sketcher.Constraint("Horizontal", 19),
    Sketcher.Constraint("Vertical", 20),
    Sketcher.Constraint("Horizontal", 21),
    Sketcher.Constraint("Vertical", 22),
    Sketcher.Constraint("Horizontal", 23),
    Sketcher.Constraint("Horizontal", 24),
    Sketcher.Constraint("Vertical", 25),
    Sketcher.Constraint("Horizontal", 26),
    Sketcher.Constraint("Vertical", 27),
    Sketcher.Constraint("Horizontal", 28),
    Sketcher.Constraint("Vertical", 29),
    Sketcher.Constraint("Horizontal", 30),
    Sketcher.Constraint("Vertical", 31),
    Sketcher.Constraint("Vertical", 32),
    Sketcher.Constraint("Horizontal", 33),
    Sketcher.Constraint("Vertical", 34),
    Sketcher.Constraint("Horizontal", 35),
    Sketcher.Constraint("Vertical", 36),
    Sketcher.Constraint("Horizontal", 37),
    Sketcher.Constraint("Vertical", 38),
    Sketcher.Constraint("Horizontal", 39),
    Sketcher.Constraint("Vertical", 40),
    Sketcher.Constraint("Horizontal", 41),
    Sketcher.Constraint("Vertical", 42),
    Sketcher.Constraint("Horizontal", 43),
    Sketcher.Constraint("Vertical", 44),
    Sketcher.Constraint("Horizontal", 45),
    Sketcher.Constraint("Vertical", 46),
    Sketcher.Constraint("Horizontal", 47),
    Sketcher.Constraint("PointOnObject", 0, 2, -1),
    Sketcher.Constraint("PointOnObject", 8, 2, -1),
    Sketcher.Constraint("PointOnObject", 16, 2, -1),
    Sketcher.Constraint("PointOnObject", 25, 2, -1),
    Sketcher.Constraint("PointOnObject", 32, 2, -1),
    Sketcher.Constraint("PointOnObject", 40, 2, -1),
    Sketcher.Constraint("Horizontal", 2, 2, 5, 2),
    Sketcher.Constraint("Horizontal", 6, 2, 9, 2),
    Sketcher.Constraint("Horizontal", 4, 2, 11, 2),
    Sketcher.Constraint("Horizontal", 10, 2, 13, 2),
    Sketcher.Constraint("Horizontal", 14, 2, 18, 2),
    Sketcher.Constraint("Horizontal", 12, 2, 20, 2),
    Sketcher.Constraint("Horizontal", 19, 2, 22, 2),
    Sketcher.Constraint("Horizontal", 23, 2, 24, 2),
    Sketcher.Constraint("Horizontal", 24, 2, 27, 2),
    Sketcher.Constraint("Horizontal", 21, 2, 29, 2),
    Sketcher.Constraint("Horizontal", 31, 2, 34, 2),
    Sketcher.Constraint("Horizontal", 30, 2, 36, 2),
    Sketcher.Constraint("Horizontal", 35, 2, 38, 2),
    Sketcher.Constraint("Horizontal", 39, 2, 42, 2),
    Sketcher.Constraint("Horizontal", 37, 2, 44, 2),
    Sketcher.Constraint("Horizontal", 43, 2, 46, 2),
    Sketcher.Constraint("Equal", 2, 6),
    Sketcher.Constraint("Equal", 0, 8),
    Sketcher.Constraint("Equal", 6, 10),
    Sketcher.Constraint("Equal", 4, 12),
    Sketcher.Constraint("Equal", 8, 17),
    Sketcher.Constraint("Equal", 14, 19),
    Sketcher.Constraint("Equal", 12, 21),
    Sketcher.Constraint("Equal", 23, 24),
    Sketcher.Constraint("Equal", 17, 26),
    Sketcher.Constraint("Equal", 24, 28),
    Sketcher.Constraint("Equal", 26, 33),
    Sketcher.Constraint("Equal", 28, 35),
    Sketcher.Constraint("Equal", 30, 37),
    Sketcher.Constraint("Equal", 33, 41),
    Sketcher.Constraint("Equal", 39, 43),
    Sketcher.Constraint("Equal", 37, 45),
    Sketcher.Constraint("DistanceX", 0, 1, 0, 2, Q("39 in")),
    Sketcher.Constraint("DistanceX", 4, 2, 4, 1, Q("34 in")),
    Sketcher.Constraint("DistanceY", 1, 1, 1, 2, Q("2 in")),
    Sketcher.Constraint("DistanceY", 3, 1, 3, 2, Q("81 in")),
    Sketcher.Constraint("DistanceX", -1, 1, 0, 2, Q("44 in")),
    Sketcher.Constraint("DistanceX", -1, 1, 10, 2, Q("119 in")),
    Sketcher.Constraint("DistanceX", -1, 1, 16, 2, Q("144 in")),
    Sketcher.Constraint("DistanceX", -1, 1, 28, 2, Q("223 in")),
    Sketcher.Constraint("DistanceX", -1, 1, 32, 2, Q("248 in")),
    Sketcher.Constraint("DistanceX", -1, 1, 43, 2, Q("346 in")),
])
pad7 = body7.newObject("PartDesign::Pad", "Pad006")
pad7.Profile = sketch7
pad7.Length = Q("0.5 in")
pad7.Reversed = True
doc.recompute()

body8 = doc.addObject("PartDesign::Body", "Body007")
body8.BaseFeature = body7
boolean = body.newObject("PartDesign::Boolean", "Boolean")
boolean.Type = "Cut"
boolean.addObjects([body8])
doc.recompute()

body9 = doc.addObject("PartDesign::Body", "Body008")
body9.BaseFeature = body7
boolean2 = body2.newObject("PartDesign::Boolean", "Boolean001")
boolean2.Type = "Cut"
boolean2.addObjects([body9])
doc.recompute()

body10 = doc.addObject("PartDesign::Body", "Body009")
body10.BaseFeature = body7
boolean3 = body3.newObject("PartDesign::Boolean", "Boolean002")
boolean3.Type = "Cut"
boolean3.addObjects([body10])
doc.recompute()

body11 = doc.addObject("PartDesign::Body", "Body010")
body11.BaseFeature = body7
boolean4 = body4.newObject("PartDesign::Boolean", "Boolean003")
boolean4.Type = "Cut"
boolean4.addObjects([body11])
doc.recompute()

body12 = doc.addObject("PartDesign::Body", "Body011")
body12.BaseFeature = body7
boolean5 = body5.newObject("PartDesign::Boolean", "Boolean004")
boolean5.Type = "Cut"
boolean5.addObjects([body12])
doc.recompute()

boolean6 = body6.newObject("PartDesign::Boolean", "Boolean005")
boolean6.Type = "Cut"
boolean6.addObjects([body7])

doc.recompute()
